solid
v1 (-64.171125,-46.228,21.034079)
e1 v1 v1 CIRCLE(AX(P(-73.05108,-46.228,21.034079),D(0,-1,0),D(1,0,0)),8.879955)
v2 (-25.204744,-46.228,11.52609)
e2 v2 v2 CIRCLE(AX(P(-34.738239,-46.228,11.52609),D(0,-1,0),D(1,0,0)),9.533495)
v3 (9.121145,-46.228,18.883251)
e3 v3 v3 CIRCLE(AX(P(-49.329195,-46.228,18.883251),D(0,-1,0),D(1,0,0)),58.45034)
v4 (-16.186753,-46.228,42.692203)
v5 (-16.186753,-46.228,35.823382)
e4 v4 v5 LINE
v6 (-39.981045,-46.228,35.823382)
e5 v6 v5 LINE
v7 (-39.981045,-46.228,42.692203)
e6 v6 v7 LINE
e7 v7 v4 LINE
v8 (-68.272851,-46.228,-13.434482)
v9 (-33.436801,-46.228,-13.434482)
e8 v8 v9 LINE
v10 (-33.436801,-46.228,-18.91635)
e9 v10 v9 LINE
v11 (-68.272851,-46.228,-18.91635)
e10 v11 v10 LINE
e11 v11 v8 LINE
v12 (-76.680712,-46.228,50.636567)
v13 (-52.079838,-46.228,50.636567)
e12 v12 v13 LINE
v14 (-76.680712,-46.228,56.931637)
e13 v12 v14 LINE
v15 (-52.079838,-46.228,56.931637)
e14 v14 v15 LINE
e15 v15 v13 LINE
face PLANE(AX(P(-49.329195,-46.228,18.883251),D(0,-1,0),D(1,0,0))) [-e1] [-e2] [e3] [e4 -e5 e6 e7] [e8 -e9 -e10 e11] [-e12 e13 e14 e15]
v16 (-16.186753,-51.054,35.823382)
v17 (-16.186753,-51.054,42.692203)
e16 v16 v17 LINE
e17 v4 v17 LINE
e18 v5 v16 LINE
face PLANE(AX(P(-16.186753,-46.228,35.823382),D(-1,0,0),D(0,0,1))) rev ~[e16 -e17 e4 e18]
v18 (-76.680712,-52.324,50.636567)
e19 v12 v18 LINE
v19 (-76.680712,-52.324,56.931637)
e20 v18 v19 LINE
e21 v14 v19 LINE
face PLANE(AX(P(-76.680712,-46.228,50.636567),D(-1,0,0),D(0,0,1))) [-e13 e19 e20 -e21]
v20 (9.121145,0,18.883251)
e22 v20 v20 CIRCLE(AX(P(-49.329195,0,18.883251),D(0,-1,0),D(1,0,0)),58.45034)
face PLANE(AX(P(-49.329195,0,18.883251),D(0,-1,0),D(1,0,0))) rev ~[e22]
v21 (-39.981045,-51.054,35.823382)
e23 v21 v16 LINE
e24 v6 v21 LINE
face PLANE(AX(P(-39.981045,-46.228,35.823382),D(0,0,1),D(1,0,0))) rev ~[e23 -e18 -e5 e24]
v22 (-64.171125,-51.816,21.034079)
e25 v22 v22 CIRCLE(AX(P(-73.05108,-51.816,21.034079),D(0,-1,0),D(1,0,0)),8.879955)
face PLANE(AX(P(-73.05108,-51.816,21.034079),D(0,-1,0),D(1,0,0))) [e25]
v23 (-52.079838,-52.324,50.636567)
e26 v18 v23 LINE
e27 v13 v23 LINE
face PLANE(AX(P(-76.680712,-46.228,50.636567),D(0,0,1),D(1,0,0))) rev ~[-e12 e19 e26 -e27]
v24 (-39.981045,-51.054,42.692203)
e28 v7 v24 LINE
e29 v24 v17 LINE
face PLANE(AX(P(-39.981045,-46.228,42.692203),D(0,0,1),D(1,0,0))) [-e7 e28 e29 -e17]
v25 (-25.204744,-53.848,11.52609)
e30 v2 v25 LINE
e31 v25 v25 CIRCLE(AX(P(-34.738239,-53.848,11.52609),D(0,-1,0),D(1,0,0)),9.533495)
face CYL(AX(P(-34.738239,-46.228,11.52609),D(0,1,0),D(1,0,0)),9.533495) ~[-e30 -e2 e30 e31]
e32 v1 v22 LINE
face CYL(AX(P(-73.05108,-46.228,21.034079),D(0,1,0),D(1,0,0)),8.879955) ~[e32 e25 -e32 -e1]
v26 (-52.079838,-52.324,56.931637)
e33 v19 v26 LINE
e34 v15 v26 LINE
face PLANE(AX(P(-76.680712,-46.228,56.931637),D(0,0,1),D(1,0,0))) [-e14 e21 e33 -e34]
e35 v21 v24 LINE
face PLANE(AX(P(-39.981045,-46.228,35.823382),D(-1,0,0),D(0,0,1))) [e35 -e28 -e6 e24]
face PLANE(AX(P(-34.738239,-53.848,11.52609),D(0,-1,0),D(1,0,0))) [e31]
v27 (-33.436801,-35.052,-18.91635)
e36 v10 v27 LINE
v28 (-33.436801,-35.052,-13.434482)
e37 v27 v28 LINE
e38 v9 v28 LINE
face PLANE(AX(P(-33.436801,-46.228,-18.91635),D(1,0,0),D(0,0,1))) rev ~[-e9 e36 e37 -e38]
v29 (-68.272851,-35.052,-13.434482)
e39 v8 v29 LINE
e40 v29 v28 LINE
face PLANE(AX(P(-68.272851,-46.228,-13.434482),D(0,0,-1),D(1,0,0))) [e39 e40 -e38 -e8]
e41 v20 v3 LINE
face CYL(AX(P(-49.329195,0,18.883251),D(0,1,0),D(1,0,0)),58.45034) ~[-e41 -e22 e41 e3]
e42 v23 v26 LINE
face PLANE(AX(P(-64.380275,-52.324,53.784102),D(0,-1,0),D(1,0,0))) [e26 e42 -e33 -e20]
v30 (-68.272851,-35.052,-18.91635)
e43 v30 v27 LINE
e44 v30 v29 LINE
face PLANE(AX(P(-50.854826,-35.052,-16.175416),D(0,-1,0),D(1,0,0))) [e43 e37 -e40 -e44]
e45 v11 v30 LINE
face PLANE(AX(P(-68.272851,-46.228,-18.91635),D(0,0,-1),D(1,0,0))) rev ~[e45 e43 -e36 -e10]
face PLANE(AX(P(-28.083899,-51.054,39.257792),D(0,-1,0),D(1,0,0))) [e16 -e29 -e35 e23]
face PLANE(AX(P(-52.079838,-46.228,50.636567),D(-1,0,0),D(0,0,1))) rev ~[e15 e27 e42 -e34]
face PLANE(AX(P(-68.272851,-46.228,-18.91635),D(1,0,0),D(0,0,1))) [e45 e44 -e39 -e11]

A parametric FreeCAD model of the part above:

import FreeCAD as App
import Part
import Sketcher
from FreeCAD import Vector
Q = App.Units.Quantity


def add_polygon(sketch, points):
    """Adds a closed chain of lines whose ends are joined by coincident constraints."""
    first, n = sketch.GeometryCount, len(points)
    for a, b in zip(points, points[1:] + points[:1]):
        sketch.addGeometry(Part.LineSegment(App.Vector(*a, 0), App.Vector(*b, 0)), False)
    for i in range(n):
        sketch.addConstraint(Sketcher.Constraint("Coincident", first + i, 2, first + (i + 1) % n, 1))

doc = App.newDocument("Part")
body = doc.addObject("PartDesign::Body", "Body")

# Sketch on XZ plane
sketch1 = body.newObject("Sketcher::SketchObject", "Sketch")
sketch1.AttachmentSupport = (doc.getObject("XZ_Plane"), [""])
sketch1.MapMode = "FlatFace"
sketch1.addGeometry(Part.Circle(Vector(-49.329195, 18.883251, 0), Vector(0, 0, 1), 58.45034), False)
sketch1.addConstraint([
    Sketcher.Constraint("Diameter", 0, Q("116.90068 mm")),
    Sketcher.Constraint("DistanceY", -1, 1, 0, 3, Q("18.883251 mm")),
    Sketcher.Constraint("DistanceX", 0, 3, -1, 1, Q("49.329195 mm")),
])
pad1 = body.newObject("PartDesign::Pad", "Pad")
pad1.Profile = sketch1
pad1.Length = Q("1.82 in")

# Sketch on XZ plane
sketch2 = body.newObject("Sketcher::SketchObject", "Sketch001")
sketch2.AttachmentSupport = (doc.getObject("XZ_Plane"), [""])
sketch2.MapMode = "FlatFace"
sketch2.AttachmentOffset = App.Placement(Vector(0, 0, 1.82 * 25.4), App.Rotation())
add_polygon(sketch2, [(-76.680712, 56.931637), (-76.680712, 50.636567), (-52.079838, 50.636567), (-52.079838, 56.931637)])  # lines 0-3
sketch2.addConstraint([
    Sketcher.Constraint("Vertical", 0),
    Sketcher.Constraint("Horizontal", 1),
    Sketcher.Constraint("Vertical", 2),
    Sketcher.Constraint("Horizontal", 3),
    Sketcher.Constraint("DistanceY", 0, 2, 0, 1, Q("6.29507 mm")),
    Sketcher.Constraint("DistanceX", 1, 1, 1, 2, Q("24.600874 mm")),
    Sketcher.Constraint("DistanceX", 0, 2, -1, 1, Q("76.680712 mm")),
    Sketcher.Constraint("DistanceY", -1, 1, 0, 2, Q("50.636567 mm")),
])
pad2 = body.newObject("PartDesign::Pad", "Pad001")
pad2.Profile = sketch2
pad2.Length = Q("0.24 in")

# Sketch on XZ plane
sketch3 = body.newObject("Sketcher::SketchObject", "Sketch002")
sketch3.AttachmentSupport = (doc.getObject("XZ_Plane"), [""])
sketch3.MapMode = "FlatFace"
sketch3.AttachmentOffset = App.Placement(Vector(0, 0, 1.82 * 25.4), App.Rotation())
add_polygon(sketch3, [(-39.981045, 42.692203), (-39.981045, 35.823382), (-16.186753, 35.823382), (-16.186753, 42.692203)])  # lines 0-3
sketch3.addConstraint([
    Sketcher.Constraint("Vertical", 0),
    Sketcher.Constraint("Horizontal", 1),
    Sketcher.Constraint("Vertical", 2),
    Sketcher.Constraint("Horizontal", 3),
    Sketcher.Constraint("DistanceY", 0, 2, 0, 1, Q("6.868821 mm")),
    Sketcher.Constraint("DistanceX", 1, 1, 1, 2, Q("23.794292 mm")),
    Sketcher.Constraint("DistanceY", -1, 1, 0, 2, Q("35.823382 mm")),
    Sketcher.Constraint("DistanceX", 0, 2, -1, 1, Q("39.981045 mm")),
])
pad3 = body.newObject("PartDesign::Pad", "Pad002")
pad3.Profile = sketch3
pad3.Length = Q("0.19 in")

# Sketch on XZ plane
sketch4 = body.newObject("Sketcher::SketchObject", "Sketch003")
sketch4.AttachmentSupport = (doc.getObject("XZ_Plane"), [""])
sketch4.MapMode = "FlatFace"
sketch4.AttachmentOffset = App.Placement(Vector(0, 0, 1.82 * 25.4), App.Rotation())
sketch4.addGeometry(Part.Circle(Vector(-73.05108, 21.034079, 0), Vector(0, 0, 1), 8.879955), False)
sketch4.addConstraint([
    Sketcher.Constraint("Diameter", 0, Q("17.75991 mm")),
    Sketcher.Constraint("DistanceX", 0, 3, -1, 1, Q("73.05108 mm")),
    Sketcher.Constraint("DistanceY", -1, 1, 0, 3, Q("21.034079 mm")),
])
pad4 = body.newObject("PartDesign::Pad", "Pad003")
pad4.Profile = sketch4
pad4.Length = Q("0.22 in")

# Sketch on XZ plane
sketch5 = body.newObject("Sketcher::SketchObject", "Sketch004")
sketch5.AttachmentSupport = (doc.getObject("XZ_Plane"), [""])
sketch5.MapMode = "FlatFace"
sketch5.AttachmentOffset = App.Placement(Vector(0, 0, 1.82 * 25.4), App.Rotation())
sketch5.addGeometry(Part.Circle(Vector(-34.738239, 11.52609, 0), Vector(0, 0, 1), 9.533495), False)
sketch5.addConstraint([
    Sketcher.Constraint("Diameter", 0, Q("19.06699 mm")),
    Sketcher.Constraint("DistanceX", 0, 3, -1, 1, Q("34.738239 mm")),
    Sketcher.Constraint("DistanceY", -1, 1, 0, 3, Q("11.52609 mm")),
])
pad5 = body.newObject("PartDesign::Pad", "Pad004")
pad5.Profile = sketch5
pad5.Length = Q("0.3 in")

# Sketch on XZ plane
sketch6 = body.newObject("Sketcher::SketchObject", "Sketch005")
sketch6.AttachmentSupport = (doc.getObject("XZ_Plane"), [""])
sketch6.MapMode = "FlatFace"
sketch6.AttachmentOffset = App.Placement(Vector(0, 0, 1.82 * 25.4), App.Rotation())
sketch6.addGeometry(Part.Circle(Vector(-49.329195, 18.883251, 0), Vector(0, 0, 1), 58.45034), False)  # 0
sketch6.addGeometry(Part.Circle(Vector(-73.05108, 21.034079, 0), Vector(0, 0, 1), 8.879955), False)  # 1
sketch6.addGeometry(Part.Circle(Vector(-34.738239, 11.52609, 0), Vector(0, 0, 1), 9.533495), False)  # 2
add_polygon(sketch6, [(-52.079838, 50.636568), (-76.680712, 50.636568), (-76.680712, 56.931638), (-52.079838, 56.931638)])  # lines 3-6
add_polygon(sketch6, [(-16.186753, 35.823383), (-39.981045, 35.823383), (-39.981045, 42.692203), (-16.186753, 42.692203)])  # lines 7-10
sketch6.addConstraint([
    Sketcher.Constraint("Horizontal", 3),
    Sketcher.Constraint("Vertical", 4),
    Sketcher.Constraint("Horizontal", 5),
    Sketcher.Constraint("Vertical", 6),
    Sketcher.Constraint("Horizontal", 7),
    Sketcher.Constraint("Vertical", 8),
    Sketcher.Constraint("Horizontal", 9),
    Sketcher.Constraint("Vertical", 10),
    Sketcher.Constraint("Diameter", 0, Q("116.90068 mm")),
    Sketcher.Constraint("Diameter", 1, Q("17.75991 mm")),
    Sketcher.Constraint("Diameter", 2, Q("19.06699 mm")),
    Sketcher.Constraint("DistanceY", 4, 1, 4, 2, Q("6.29507 mm")),
    Sketcher.Constraint("DistanceY", 8, 1, 8, 2, Q("6.86882 mm")),
    Sketcher.Constraint("DistanceX", 5, 2, 2, 3, Q("17.341599 mm")),
    Sketcher.Constraint("DistanceX", 3, 2, 3, 1, Q("24.600874 mm")),
    Sketcher.Constraint("DistanceX", 7, 2, 7, 1, Q("23.794292 mm")),
    Sketcher.Constraint("DistanceY", -1, 1, 0, 3, Q("18.883251 mm")),
    Sketcher.Constraint("DistanceX", 1, 3, -1, 1, Q("73.05108 mm")),
    Sketcher.Constraint("DistanceY", -1, 1, 1, 3, Q("21.034079 mm")),
    Sketcher.Constraint("DistanceX", 2, 3, -1, 1, Q("34.738239 mm")),
    Sketcher.Constraint("DistanceY", -1, 1, 2, 3, Q("11.52609 mm")),
    Sketcher.Constraint("DistanceY", 1, 3, 3, 2, Q("29.602489 mm")),
    Sketcher.Constraint("DistanceX", 0, 3, 7, 2, Q("9.34815 mm")),
    Sketcher.Constraint("DistanceY", 0, 3, 7, 2, Q("16.940132 mm")),
    Sketcher.Constraint("DistanceX", 0, 3, -1, 1, Q("49.329195 mm")),
])
pad6 = body.newObject("PartDesign::Pad", "Pad005")
pad6.Profile = sketch6
pad6.Length = Q("0.26 in")
pad6.Reversed = True

# Sketch on XZ plane
sketch7 = body.newObject("Sketcher::SketchObject", "Sketch006")
sketch7.AttachmentSupport = (doc.getObject("XZ_Plane"), [""])
sketch7.MapMode = "FlatFace"
sketch7.AttachmentOffset = App.Placement(Vector(0, 0, 1.82 * 25.4), App.Rotation())
add_polygon(sketch7, [(-68.272851, -13.434482), (-68.272851, -18.91635), (-33.436801, -18.91635), (-33.436801, -13.434482)])  # lines 0-3
sketch7.addConstraint([
    Sketcher.Constraint("Vertical", 0),
    Sketcher.Constraint("Horizontal", 1),
    Sketcher.Constraint("Vertical", 2),
    Sketcher.Constraint("Horizontal", 3),
    Sketcher.Constraint("DistanceX", 1, 1, 1, 2, Q("34.83605 mm")),
    Sketcher.Constraint("DistanceY", 0, 2, 0, 1, Q("5.481868 mm")),
    Sketcher.Constraint("DistanceX", 1, 2, -1, 1, Q("33.436801 mm")),
    Sketcher.Constraint("DistanceY", 0, 2, -1, 1, Q("18.91635 mm")),
])
pocket1 = body.newObject("PartDesign::Pocket", "Pocket")
pocket1.Profile = sketch7
pocket1.Length = Q("0.44 in")

doc.recompute()
